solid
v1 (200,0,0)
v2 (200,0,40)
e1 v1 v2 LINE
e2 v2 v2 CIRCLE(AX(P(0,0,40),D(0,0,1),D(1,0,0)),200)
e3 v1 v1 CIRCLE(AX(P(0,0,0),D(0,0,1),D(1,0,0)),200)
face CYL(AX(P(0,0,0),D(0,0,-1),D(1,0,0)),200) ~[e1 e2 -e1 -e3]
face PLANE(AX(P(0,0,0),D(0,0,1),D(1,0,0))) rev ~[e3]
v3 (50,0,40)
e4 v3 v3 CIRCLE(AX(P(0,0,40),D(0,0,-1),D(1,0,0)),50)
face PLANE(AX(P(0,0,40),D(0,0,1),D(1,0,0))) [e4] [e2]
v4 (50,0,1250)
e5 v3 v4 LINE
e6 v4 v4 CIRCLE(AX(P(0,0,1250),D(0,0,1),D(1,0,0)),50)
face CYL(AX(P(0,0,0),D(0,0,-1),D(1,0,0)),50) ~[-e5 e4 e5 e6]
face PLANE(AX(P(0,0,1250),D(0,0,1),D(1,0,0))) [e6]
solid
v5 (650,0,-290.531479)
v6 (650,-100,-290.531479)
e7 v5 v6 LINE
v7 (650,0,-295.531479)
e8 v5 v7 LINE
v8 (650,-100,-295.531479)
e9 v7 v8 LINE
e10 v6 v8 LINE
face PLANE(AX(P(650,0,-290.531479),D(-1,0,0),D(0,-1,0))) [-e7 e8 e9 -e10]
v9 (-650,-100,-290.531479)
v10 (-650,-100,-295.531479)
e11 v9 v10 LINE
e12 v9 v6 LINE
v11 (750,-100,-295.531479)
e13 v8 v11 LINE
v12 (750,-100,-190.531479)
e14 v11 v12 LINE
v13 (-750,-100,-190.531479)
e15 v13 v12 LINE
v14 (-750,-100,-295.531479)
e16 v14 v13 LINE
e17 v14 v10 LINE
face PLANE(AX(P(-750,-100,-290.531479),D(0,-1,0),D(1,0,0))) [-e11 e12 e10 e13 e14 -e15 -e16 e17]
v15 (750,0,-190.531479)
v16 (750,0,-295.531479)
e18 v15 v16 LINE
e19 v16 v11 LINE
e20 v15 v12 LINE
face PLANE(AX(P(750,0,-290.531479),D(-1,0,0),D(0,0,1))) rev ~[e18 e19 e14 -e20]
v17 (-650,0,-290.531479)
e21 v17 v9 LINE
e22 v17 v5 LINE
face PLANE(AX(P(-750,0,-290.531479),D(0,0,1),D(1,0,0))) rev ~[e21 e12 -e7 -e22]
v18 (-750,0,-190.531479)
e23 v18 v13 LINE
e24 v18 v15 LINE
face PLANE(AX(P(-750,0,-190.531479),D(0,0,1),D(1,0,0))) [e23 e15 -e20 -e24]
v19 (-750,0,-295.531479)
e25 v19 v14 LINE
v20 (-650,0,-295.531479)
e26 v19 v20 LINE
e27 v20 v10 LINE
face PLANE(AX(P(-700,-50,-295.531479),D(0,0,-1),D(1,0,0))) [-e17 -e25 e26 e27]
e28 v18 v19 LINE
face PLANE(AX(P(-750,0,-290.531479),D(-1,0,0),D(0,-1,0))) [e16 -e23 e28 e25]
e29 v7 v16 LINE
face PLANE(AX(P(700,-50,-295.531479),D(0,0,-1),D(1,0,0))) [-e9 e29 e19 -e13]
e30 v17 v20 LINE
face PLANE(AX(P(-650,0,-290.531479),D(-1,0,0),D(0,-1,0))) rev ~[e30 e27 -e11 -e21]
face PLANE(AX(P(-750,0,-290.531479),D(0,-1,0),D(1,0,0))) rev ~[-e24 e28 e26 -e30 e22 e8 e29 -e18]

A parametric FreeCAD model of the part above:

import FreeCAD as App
import Part
import Sketcher

V = App.Vector
Q = App.Units.Quantity

doc = App.newDocument("Part")
body = doc.addObject("PartDesign::Body", "Body")

# Sketch on XY plane
sketch1 = doc.addObject("Sketcher::SketchObject", "Sketch")
body.addObject(sketch1)
sketch1.AttachmentSupport = (doc.XY_Plane, [""])
sketch1.MapMode = "FlatFace"
sketch1.addGeometry(Part.Circle(V(0, 0, 0), V(0, 0, 1), 200), False)
sketch1.addConstraint(Sketcher.Constraint("Coincident", 0, 3, -1, 1))
sketch1.addConstraint(Sketcher.Constraint("Diameter", 0, Q("400 mm")))
pad1 = doc.addObject("PartDesign::Pad", "Pad")
body.addObject(pad1)
pad1.Profile = sketch1
pad1.Length = 40

# Sketch on XY plane
sketch2 = doc.addObject("Sketcher::SketchObject", "Sketch001")
body.addObject(sketch2)
sketch2.AttachmentSupport = (doc.XY_Plane, [""])
sketch2.MapMode = "FlatFace"
sketch2.addGeometry(Part.Circle(V(0, 0, 0), V(0, 0, 1), 50), False)
sketch2.addConstraint(Sketcher.Constraint("Coincident", 0, 3, -1, 1))
sketch2.addConstraint(Sketcher.Constraint("Diameter", 0, Q("100 mm")))
pad2 = doc.addObject("PartDesign::Pad", "Pad001")
body.addObject(pad2)
pad2.Profile = sketch2
pad2.Length = 1250
body2 = doc.addObject("PartDesign::Body", "Body001")

# Sketch on XZ plane
sketch3 = doc.addObject("Sketcher::SketchObject", "Sketch002")
body2.addObject(sketch3)
sketch3.AttachmentSupport = (doc.getObject("XZ_Plane001"), [""])
sketch3.MapMode = "FlatFace"
sketch3.addGeometry(Part.LineSegment(V(-750, -191, 0), V(-750, -291, 0)), False)
sketch3.addGeometry(Part.LineSegment(V(-750, -291, 0), V(750, -291, 0)), False)
sketch3.addGeometry(Part.LineSegment(V(750, -291, 0), V(750, -191, 0)), False)
sketch3.addGeometry(Part.LineSegment(V(750, -191, 0), V(-750, -191, 0)), False)
sketch3.addConstraint(Sketcher.Constraint("Coincident", 0, 2, 1, 1))
sketch3.addConstraint(Sketcher.Constraint("Coincident", 1, 2, 2, 1))
sketch3.addConstraint(Sketcher.Constraint("Coincident", 2, 2, 3, 1))
sketch3.addConstraint(Sketcher.Constraint("Coincident", 3, 2, 0, 1))
sketch3.addConstraint(Sketcher.Constraint("Vertical", 0))
sketch3.addConstraint(Sketcher.Constraint("Horizontal", 1))
sketch3.addConstraint(Sketcher.Constraint("Vertical", 2))
sketch3.addConstraint(Sketcher.Constraint("Horizontal", 3))
sketch3.addConstraint(Sketcher.Constraint("DistanceX", 1, 1, 1, 2, Q("1500 mm")))
sketch3.addConstraint(Sketcher.Constraint("DistanceY", 0, 2, 0, 1, Q("100 mm")))
sketch3.addConstraint(Sketcher.Constraint("DistanceX", 0, 2, -1, 1, Q("750 mm")))
sketch3.addConstraint(Sketcher.Constraint("DistanceY", 0, 2, -1, 1, Q("290.531479 mm")))
pad3 = doc.addObject("PartDesign::Pad", "Pad002")
body2.addObject(pad3)
pad3.Profile = sketch3
pad3.Length = 100

# Sketch on XY plane
sketch4 = doc.addObject("Sketcher::SketchObject", "Sketch003")
body2.addObject(sketch4)
sketch4.AttachmentSupport = (doc.getObject("XY_Plane001"), [""])
sketch4.MapMode = "FlatFace"
sketch4.AttachmentOffset = App.Placement(V(0, 0, -290.531479), App.Rotation())
sketch4.addGeometry(Part.LineSegment(V(-750, -100, 0), V(-750, 0, 0)), False)
sketch4.addGeometry(Part.LineSegment(V(-750, 0, 0), V(-650, 0, 0)), False)
sketch4.addGeometry(Part.LineSegment(V(-650, 0, 0), V(-650, -100, 0)), False)
sketch4.addGeometry(Part.LineSegment(V(-650, -100, 0), V(-750, -100, 0)), False)
sketch4.addGeometry(Part.LineSegment(V(650, -100, 0), V(650, 0, 0)), False)
sketch4.addGeometry(Part.LineSegment(V(650, 0, 0), V(750, 0, 0)), False)
sketch4.addGeometry(Part.LineSegment(V(750, 0, 0), V(750, -100, 0)), False)
sketch4.addGeometry(Part.LineSegment(V(750, -100, 0), V(650, -100, 0)), False)
sketch4.addConstraint(Sketcher.Constraint("Coincident", 0, 2, 1, 1))
sketch4.addConstraint(Sketcher.Constraint("Coincident", 1, 2, 2, 1))
sketch4.addConstraint(Sketcher.Constraint("Coincident", 2, 2, 3, 1))
sketch4.addConstraint(Sketcher.Constraint("Coincident", 3, 2, 0, 1))
sketch4.addConstraint(Sketcher.Constraint("Coincident", 4, 2, 5, 1))
sketch4.addConstraint(Sketcher.Constraint("Coincident", 5, 2, 6, 1))
sketch4.addConstraint(Sketcher.Constraint("Coincident", 6, 2, 7, 1))
sketch4.addConstraint(Sketcher.Constraint("Coincident", 7, 2, 4, 1))
sketch4.addConstraint(Sketcher.Constraint("Vertical", 0))
sketch4.addConstraint(Sketcher.Constraint("Horizontal", 1))
sketch4.addConstraint(Sketcher.Constraint("Vertical", 2))
sketch4.addConstraint(Sketcher.Constraint("Horizontal", 3))
sketch4.addConstraint(Sketcher.Constraint("Vertical", 4))
sketch4.addConstraint(Sketcher.Constraint("Horizontal", 5))
sketch4.addConstraint(Sketcher.Constraint("Vertical", 6))
sketch4.addConstraint(Sketcher.Constraint("Horizontal", 7))
sketch4.addConstraint(Sketcher.Constraint("Symmetric", 1, 2, 4, 2, -1, 1))
sketch4.addConstraint(Sketcher.Constraint("Symmetric", 0, 2, 5, 2, -2))
sketch4.addConstraint(Sketcher.Constraint("Horizontal", 3, 2, 6, 2))
sketch4.addConstraint(Sketcher.Constraint("Equal", 7, 0))
sketch4.addConstraint(Sketcher.Constraint("DistanceX", 1, 1, 1, 2, Q("100 mm")))
sketch4.addConstraint(Sketcher.Constraint("DistanceX", 0, 2, -1, 1, Q("750 mm")))
pad4 = doc.addObject("PartDesign::Pad", "Pad003")
body2.addObject(pad4)
pad4.Profile = sketch4
pad4.Length = 5
pad4.Reversed = True

doc.recompute()
